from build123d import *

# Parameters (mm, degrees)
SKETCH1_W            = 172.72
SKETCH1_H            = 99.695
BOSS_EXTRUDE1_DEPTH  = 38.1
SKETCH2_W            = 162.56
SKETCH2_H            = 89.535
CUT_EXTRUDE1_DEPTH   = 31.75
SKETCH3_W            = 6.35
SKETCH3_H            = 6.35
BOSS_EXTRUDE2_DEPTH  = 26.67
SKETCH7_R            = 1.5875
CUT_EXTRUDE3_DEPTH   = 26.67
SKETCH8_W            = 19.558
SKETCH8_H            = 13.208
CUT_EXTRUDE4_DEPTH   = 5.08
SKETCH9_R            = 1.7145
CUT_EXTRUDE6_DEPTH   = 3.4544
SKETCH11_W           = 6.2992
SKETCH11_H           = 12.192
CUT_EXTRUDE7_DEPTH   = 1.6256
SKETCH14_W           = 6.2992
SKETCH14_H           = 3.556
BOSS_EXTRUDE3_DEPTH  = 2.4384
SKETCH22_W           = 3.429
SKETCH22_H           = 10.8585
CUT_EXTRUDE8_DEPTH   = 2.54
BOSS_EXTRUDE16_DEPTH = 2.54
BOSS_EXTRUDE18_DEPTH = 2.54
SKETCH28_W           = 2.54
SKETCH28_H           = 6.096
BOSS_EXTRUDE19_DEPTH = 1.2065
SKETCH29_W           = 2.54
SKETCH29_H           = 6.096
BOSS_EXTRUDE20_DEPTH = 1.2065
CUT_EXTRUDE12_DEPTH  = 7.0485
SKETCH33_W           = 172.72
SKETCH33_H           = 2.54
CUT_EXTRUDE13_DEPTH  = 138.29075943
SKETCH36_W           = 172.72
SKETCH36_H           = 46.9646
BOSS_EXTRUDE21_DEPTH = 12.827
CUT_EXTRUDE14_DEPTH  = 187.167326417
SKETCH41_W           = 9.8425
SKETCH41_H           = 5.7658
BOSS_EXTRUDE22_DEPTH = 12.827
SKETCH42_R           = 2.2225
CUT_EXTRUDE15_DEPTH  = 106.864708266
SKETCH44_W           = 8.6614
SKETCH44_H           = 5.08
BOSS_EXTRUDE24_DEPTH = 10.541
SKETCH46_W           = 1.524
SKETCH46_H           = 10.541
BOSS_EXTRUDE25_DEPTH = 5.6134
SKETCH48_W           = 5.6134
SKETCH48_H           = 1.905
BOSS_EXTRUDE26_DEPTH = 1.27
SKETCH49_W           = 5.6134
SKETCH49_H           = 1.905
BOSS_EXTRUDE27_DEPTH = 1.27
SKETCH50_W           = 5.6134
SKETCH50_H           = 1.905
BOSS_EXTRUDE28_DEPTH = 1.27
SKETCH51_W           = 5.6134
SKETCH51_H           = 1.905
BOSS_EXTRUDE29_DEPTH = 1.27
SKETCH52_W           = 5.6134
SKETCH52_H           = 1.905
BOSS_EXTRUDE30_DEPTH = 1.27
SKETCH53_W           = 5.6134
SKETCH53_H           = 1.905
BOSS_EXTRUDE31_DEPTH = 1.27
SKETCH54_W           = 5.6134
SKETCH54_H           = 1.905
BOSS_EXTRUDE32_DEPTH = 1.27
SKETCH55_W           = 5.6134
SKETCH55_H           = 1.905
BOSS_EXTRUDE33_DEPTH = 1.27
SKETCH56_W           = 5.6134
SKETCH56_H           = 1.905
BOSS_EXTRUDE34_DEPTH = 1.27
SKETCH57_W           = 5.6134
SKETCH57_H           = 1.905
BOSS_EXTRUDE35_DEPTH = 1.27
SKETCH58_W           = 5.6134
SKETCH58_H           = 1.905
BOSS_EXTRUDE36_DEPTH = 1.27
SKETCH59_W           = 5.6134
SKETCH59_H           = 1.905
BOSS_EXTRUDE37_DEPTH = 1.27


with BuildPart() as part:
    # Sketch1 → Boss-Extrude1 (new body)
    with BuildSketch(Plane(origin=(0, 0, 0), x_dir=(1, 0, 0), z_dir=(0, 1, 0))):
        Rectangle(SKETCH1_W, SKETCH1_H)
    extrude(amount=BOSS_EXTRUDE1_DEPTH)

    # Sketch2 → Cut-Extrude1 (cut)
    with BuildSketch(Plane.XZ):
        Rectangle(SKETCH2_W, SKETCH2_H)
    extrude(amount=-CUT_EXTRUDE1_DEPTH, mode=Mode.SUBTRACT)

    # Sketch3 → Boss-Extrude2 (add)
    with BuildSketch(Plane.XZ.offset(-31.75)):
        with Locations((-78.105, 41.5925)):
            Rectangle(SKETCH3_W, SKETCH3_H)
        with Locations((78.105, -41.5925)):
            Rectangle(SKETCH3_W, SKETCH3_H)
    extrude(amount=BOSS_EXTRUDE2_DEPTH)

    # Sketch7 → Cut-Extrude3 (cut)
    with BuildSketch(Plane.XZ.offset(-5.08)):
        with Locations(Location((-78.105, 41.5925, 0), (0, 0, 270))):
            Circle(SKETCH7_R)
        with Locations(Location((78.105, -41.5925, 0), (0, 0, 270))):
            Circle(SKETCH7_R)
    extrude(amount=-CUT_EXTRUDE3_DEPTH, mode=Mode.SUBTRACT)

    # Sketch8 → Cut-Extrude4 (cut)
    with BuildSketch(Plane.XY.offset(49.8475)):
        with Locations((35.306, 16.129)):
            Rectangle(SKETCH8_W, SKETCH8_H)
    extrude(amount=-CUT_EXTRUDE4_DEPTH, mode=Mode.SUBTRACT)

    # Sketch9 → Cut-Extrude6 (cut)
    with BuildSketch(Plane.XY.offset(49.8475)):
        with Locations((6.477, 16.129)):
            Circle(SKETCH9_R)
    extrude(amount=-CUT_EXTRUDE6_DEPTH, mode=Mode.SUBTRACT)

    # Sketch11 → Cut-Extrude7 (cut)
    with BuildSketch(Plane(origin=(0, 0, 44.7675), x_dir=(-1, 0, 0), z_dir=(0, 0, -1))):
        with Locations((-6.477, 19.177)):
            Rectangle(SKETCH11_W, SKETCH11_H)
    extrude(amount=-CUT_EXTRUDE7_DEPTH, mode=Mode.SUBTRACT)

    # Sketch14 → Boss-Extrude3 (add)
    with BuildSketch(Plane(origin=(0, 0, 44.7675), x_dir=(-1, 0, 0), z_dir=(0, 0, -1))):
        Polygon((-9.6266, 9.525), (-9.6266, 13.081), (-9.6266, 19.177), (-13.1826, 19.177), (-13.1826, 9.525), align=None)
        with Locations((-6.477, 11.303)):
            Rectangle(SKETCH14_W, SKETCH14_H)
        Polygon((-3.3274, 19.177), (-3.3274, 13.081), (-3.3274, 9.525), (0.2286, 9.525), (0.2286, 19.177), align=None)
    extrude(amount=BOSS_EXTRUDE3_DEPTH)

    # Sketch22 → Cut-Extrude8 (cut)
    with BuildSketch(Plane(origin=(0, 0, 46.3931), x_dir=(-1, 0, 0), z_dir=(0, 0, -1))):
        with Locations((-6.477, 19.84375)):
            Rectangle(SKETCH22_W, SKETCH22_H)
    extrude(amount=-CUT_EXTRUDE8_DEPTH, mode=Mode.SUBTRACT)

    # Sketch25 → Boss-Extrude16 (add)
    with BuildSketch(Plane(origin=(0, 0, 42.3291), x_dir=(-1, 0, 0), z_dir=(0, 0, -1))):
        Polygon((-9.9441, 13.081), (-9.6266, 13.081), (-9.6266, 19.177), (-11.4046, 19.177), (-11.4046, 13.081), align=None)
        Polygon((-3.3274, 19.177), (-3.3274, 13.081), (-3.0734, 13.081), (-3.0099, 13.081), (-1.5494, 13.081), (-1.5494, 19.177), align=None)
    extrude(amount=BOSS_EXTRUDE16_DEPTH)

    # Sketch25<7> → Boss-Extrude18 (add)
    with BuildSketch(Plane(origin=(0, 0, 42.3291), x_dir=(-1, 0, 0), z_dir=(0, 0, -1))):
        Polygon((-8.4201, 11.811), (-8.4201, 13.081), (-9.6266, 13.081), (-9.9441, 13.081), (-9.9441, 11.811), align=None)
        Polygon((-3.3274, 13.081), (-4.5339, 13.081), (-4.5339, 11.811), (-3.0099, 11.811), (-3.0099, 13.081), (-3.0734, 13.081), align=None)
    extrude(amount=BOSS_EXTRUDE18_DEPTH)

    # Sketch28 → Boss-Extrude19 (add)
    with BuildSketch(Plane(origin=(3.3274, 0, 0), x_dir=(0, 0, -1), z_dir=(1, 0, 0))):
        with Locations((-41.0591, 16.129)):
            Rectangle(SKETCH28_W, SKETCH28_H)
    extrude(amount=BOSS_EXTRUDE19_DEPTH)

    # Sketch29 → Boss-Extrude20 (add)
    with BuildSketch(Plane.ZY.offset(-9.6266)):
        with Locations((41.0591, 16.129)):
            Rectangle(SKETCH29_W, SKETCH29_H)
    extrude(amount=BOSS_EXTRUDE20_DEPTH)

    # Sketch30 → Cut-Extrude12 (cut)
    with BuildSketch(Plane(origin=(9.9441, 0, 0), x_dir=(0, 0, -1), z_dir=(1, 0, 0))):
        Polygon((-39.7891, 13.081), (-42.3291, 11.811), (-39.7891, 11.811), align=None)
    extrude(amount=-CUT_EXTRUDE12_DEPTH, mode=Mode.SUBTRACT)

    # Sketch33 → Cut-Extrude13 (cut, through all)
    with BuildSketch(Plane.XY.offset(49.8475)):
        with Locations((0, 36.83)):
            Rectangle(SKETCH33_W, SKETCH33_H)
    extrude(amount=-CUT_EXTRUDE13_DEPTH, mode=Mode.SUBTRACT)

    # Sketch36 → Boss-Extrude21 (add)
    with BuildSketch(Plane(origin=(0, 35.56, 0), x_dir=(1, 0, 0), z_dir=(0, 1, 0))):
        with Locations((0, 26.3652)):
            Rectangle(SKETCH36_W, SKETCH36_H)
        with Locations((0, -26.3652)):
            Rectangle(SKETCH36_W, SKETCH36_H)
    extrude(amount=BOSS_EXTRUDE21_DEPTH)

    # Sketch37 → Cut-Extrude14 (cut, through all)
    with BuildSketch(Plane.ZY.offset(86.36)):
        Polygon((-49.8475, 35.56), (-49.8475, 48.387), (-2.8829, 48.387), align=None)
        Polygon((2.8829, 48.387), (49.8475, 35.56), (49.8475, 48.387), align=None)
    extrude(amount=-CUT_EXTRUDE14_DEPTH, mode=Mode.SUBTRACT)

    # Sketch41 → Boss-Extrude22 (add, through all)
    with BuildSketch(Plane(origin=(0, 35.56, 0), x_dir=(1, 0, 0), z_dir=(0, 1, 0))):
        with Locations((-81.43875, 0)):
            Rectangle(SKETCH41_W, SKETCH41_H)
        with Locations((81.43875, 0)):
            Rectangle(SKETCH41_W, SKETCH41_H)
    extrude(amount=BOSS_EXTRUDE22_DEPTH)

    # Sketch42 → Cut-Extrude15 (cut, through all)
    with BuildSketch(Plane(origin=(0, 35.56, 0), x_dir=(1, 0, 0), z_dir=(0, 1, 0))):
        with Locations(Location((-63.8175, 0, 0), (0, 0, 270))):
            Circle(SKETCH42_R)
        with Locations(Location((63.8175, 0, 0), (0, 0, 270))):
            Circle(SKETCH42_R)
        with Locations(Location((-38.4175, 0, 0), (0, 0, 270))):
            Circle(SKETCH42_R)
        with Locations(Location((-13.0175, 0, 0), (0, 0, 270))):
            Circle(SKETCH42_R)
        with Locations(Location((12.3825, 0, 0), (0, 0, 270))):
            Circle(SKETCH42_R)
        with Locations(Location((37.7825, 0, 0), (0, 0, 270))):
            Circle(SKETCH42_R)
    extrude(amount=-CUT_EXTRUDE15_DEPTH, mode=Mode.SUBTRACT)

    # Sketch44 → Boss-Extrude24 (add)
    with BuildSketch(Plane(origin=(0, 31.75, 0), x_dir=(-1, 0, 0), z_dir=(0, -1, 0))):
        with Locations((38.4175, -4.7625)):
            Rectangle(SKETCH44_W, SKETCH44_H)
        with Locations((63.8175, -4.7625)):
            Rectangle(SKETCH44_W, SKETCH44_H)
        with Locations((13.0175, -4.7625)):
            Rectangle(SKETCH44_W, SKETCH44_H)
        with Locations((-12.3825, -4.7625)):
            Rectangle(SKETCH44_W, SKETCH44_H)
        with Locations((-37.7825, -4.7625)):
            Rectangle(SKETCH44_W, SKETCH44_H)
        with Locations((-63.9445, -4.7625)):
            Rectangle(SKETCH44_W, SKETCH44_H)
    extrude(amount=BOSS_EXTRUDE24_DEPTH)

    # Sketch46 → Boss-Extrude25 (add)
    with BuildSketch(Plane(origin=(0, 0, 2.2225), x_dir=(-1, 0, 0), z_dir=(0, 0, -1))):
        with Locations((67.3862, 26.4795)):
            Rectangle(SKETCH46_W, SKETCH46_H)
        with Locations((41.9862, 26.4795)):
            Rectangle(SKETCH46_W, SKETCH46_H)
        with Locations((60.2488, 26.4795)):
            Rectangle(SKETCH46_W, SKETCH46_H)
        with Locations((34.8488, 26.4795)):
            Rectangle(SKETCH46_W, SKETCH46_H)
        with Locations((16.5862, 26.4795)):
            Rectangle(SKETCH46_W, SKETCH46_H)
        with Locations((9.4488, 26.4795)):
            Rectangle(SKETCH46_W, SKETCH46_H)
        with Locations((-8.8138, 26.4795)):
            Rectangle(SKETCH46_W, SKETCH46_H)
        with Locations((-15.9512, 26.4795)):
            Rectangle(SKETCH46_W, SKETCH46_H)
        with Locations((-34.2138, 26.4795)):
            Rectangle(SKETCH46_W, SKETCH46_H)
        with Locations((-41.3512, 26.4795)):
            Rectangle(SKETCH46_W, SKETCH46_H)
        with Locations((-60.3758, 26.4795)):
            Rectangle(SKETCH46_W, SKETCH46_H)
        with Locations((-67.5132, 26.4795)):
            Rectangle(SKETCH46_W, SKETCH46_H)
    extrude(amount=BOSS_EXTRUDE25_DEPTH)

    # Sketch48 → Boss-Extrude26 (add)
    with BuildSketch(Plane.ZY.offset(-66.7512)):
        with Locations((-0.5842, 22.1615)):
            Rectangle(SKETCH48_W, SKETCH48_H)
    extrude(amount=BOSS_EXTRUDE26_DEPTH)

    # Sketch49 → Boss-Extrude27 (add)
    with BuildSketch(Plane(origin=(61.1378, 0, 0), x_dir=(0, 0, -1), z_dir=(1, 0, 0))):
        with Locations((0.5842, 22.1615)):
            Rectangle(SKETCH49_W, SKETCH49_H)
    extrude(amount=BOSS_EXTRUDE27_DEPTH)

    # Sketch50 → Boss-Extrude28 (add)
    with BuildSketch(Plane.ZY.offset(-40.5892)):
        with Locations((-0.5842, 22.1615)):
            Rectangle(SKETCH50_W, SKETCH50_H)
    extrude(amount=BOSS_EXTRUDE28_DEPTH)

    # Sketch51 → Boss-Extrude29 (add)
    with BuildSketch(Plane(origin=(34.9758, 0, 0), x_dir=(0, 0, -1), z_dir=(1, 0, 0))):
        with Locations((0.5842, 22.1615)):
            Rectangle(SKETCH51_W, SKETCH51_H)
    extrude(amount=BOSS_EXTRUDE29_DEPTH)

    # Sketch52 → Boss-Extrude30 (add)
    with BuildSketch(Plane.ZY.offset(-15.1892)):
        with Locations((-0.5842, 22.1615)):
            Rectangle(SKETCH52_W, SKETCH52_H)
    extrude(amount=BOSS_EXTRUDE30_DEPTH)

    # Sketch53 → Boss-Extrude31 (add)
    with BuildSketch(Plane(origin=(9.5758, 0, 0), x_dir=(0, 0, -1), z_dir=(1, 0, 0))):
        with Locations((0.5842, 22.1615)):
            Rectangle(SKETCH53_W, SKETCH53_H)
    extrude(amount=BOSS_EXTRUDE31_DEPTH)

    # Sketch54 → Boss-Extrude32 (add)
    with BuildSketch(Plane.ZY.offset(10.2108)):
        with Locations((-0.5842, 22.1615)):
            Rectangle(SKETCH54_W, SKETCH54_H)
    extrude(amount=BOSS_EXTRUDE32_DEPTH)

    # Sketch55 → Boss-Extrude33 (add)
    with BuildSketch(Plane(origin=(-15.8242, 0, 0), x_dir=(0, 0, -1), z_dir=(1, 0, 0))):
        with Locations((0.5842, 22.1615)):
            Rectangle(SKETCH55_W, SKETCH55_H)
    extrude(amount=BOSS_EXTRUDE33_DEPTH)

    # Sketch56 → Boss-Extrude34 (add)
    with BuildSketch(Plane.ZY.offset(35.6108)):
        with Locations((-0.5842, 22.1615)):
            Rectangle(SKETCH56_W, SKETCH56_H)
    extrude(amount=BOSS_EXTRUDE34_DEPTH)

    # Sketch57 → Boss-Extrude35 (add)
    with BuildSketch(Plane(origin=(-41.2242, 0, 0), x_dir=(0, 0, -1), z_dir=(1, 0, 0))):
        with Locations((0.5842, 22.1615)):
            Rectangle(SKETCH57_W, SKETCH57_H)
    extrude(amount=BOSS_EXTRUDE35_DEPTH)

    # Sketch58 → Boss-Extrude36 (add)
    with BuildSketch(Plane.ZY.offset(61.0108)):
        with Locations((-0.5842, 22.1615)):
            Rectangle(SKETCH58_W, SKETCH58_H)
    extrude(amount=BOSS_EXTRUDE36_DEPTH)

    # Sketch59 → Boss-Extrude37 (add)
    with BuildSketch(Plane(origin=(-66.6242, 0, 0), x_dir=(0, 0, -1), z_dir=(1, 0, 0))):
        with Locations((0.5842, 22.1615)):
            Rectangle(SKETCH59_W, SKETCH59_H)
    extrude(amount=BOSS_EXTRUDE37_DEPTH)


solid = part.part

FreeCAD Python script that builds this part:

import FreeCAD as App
import Part
import Sketcher

V = App.Vector
Q = App.Units.Quantity


def add_polygon(sketch, points):
    """Adds a closed chain of lines whose ends are joined by coincident constraints."""
    first, n = sketch.GeometryCount, len(points)
    for a, b in zip(points, points[1:] + points[:1]):
        sketch.addGeometry(Part.LineSegment(App.Vector(*a, 0), App.Vector(*b, 0)), False)
    for i in range(n):
        sketch.addConstraint(Sketcher.Constraint("Coincident", first + i, 2, first + (i + 1) % n, 1))

doc = App.newDocument("Part")
body = doc.addObject("PartDesign::Body", "Body")

# Sketch on XZ plane
sketch1 = body.newObject("Sketcher::SketchObject", "Sketch")
sketch1.AttachmentSupport = (doc.getObject("XZ_Plane"), [""])
sketch1.MapMode = "FlatFace"
add_polygon(sketch1, [(-86, -50), (-86, 50), (86, 50), (86, -50)])  # lines 0-3
sketch1.addConstraint([
    Sketcher.Constraint("Vertical", 0),
    Sketcher.Constraint("Horizontal", 1),
    Sketcher.Constraint("Vertical", 2),
    Sketcher.Constraint("Horizontal", 3),
    Sketcher.Constraint("Symmetric", 0, 2, 2, 2, -1, 1),
    Sketcher.Constraint("DistanceX", 1, 1, 1, 2, Q("6.8 in")),
    Sketcher.Constraint("DistanceY", 0, 1, 0, 2, Q("3.925 in")),
])
pad1 = body.newObject("PartDesign::Pad", "Pad")
pad1.Profile = sketch1
pad1.Length = Q("1.5 in")
pad1.Reversed = True

# Sketch on XZ plane
sketch2 = body.newObject("Sketcher::SketchObject", "Sketch001")
sketch2.AttachmentSupport = (doc.getObject("XZ_Plane"), [""])
sketch2.MapMode = "FlatFace"
add_polygon(sketch2, [(-81, 45), (-81, -45), (81, -45), (81, 45)])  # lines 0-3
sketch2.addConstraint([
    Sketcher.Constraint("Vertical", 0),
    Sketcher.Constraint("Horizontal", 1),
    Sketcher.Constraint("Vertical", 2),
    Sketcher.Constraint("Horizontal", 3),
    Sketcher.Constraint("Symmetric", 0, 2, 2, 2, -1, 1),
    Sketcher.Constraint("DistanceX", 1, 1, 1, 2, Q("6.4 in")),
    Sketcher.Constraint("DistanceY", 0, 2, 0, 1, Q("3.525 in")),
])
pocket1 = body.newObject("PartDesign::Pocket", "Pocket")
pocket1.Profile = sketch2
pocket1.Length = Q("1.25 in")

# Sketch on XZ plane
sketch3 = body.newObject("Sketcher::SketchObject", "Sketch002")
sketch3.AttachmentSupport = (doc.getObject("XZ_Plane"), [""])
sketch3.MapMode = "FlatFace"
sketch3.AttachmentOffset = App.Placement(V(0, 0, -1.25 * 25.4), App.Rotation())
add_polygon(sketch3, [(-81, 45), (-81, 38), (-75, 38), (-75, 45)])  # lines 0-3
add_polygon(sketch3, [(75, -38), (75, -45), (81, -45), (81, -38)])  # lines 4-7
sketch3.addConstraint([
    Sketcher.Constraint("Vertical", 0),
    Sketcher.Constraint("Horizontal", 1),
    Sketcher.Constraint("Vertical", 2),
    Sketcher.Constraint("Horizontal", 3),
    Sketcher.Constraint("Vertical", 4),
    Sketcher.Constraint("Horizontal", 5),
    Sketcher.Constraint("Vertical", 6),
    Sketcher.Constraint("Horizontal", 7),
    Sketcher.Constraint("Symmetric", 2, 2, 4, 2, -1, 1),
    Sketcher.Constraint("Symmetric", 0, 2, 6, 2, -1, 1),
    Sketcher.Constraint("Equal", 7, 0),
    Sketcher.Constraint("DistanceX", 1, 1, 1, 2, Q("0.25 in")),
    Sketcher.Constraint("DistanceX", 0, 2, -1, 1, Q("3.2 in")),
    Sketcher.Constraint("DistanceY", 4, 2, 1, 2, Q("3.275 in")),
])
pad2 = body.newObject("PartDesign::Pad", "Pad001")
pad2.Profile = sketch3
pad2.Length = Q("1.05 in")

# Sketch on XZ plane
sketch4 = body.newObject("Sketcher::SketchObject", "Sketch003")
sketch4.AttachmentSupport = (doc.getObject("XZ_Plane"), [""])
sketch4.MapMode = "FlatFace"
sketch4.AttachmentOffset = App.Placement(V(0, 0, -0.2 * 25.4), App.Rotation())
sketch4.addGeometry([
    Part.Circle(V(-78.1, 41.6, 0), V(0, 0, 1), 1.6),
    Part.Circle(V(78.1, -41.6, 0), V(0, 0, 1), 1.6),
], False)
sketch4.addConstraint([
    Sketcher.Constraint("Equal", 0, 1),
    Sketcher.Constraint("Symmetric", 0, 3, 1, 3, -1, 1),
    Sketcher.Constraint("Diameter", 0, Q("0.125 in")),
    Sketcher.Constraint("DistanceX", 0, 3, 1, 3, Q("6.15 in")),
    Sketcher.Constraint("DistanceY", 1, 3, 0, 3, Q("3.275 in")),
])
pocket2 = body.newObject("PartDesign::Pocket", "Pocket001")
pocket2.Profile = sketch4
pocket2.Length = Q("1.05 in")

# Sketch on XY plane
sketch5 = body.newObject("Sketcher::SketchObject", "Sketch004")
sketch5.AttachmentSupport = (doc.getObject("XY_Plane"), [""])
sketch5.MapMode = "FlatFace"
sketch5.AttachmentOffset = App.Placement(V(0, 0, 1.9625 * 25.4), App.Rotation())
add_polygon(sketch5, [(26, 23), (26, 10), (45, 10), (45, 23)])  # lines 0-3
sketch5.addConstraint([
    Sketcher.Constraint("Vertical", 0),
    Sketcher.Constraint("Horizontal", 1),
    Sketcher.Constraint("Vertical", 2),
    Sketcher.Constraint("Horizontal", 3),
    Sketcher.Constraint("DistanceX", 1, 1, 1, 2, Q("0.77 in")),
    Sketcher.Constraint("DistanceY", 0, 2, 0, 1, Q("0.52 in")),
    Sketcher.Constraint("DistanceX", -1, 1, 0, 2, Q("1.005 in")),
    Sketcher.Constraint("DistanceY", -1, 1, 0, 2, Q("0.375 in")),
])
pocket3 = body.newObject("PartDesign::Pocket", "Pocket002")
pocket3.Profile = sketch5
pocket3.Length = Q("0.2 in")

# Sketch on XY plane
sketch6 = body.newObject("Sketcher::SketchObject", "Sketch005")
sketch6.AttachmentSupport = (doc.getObject("XY_Plane"), [""])
sketch6.MapMode = "FlatFace"
sketch6.AttachmentOffset = App.Placement(V(0, 0, 1.9625 * 25.4), App.Rotation())
sketch6.addGeometry(Part.Circle(V(6.5, 16.1, 0), V(0, 0, 1), 1.7), False)
sketch6.addConstraint([
    Sketcher.Constraint("Diameter", 0, Q("0.135 in")),
    Sketcher.Constraint("DistanceX", -1, 1, 0, 3, Q("0.255 in")),
    Sketcher.Constraint("DistanceY", -1, 1, 0, 3, Q("0.635 in")),
])
pocket4 = body.newObject("PartDesign::Pocket", "Pocket003")
pocket4.Profile = sketch6
pocket4.Length = Q("0.136 in")

# Sketch on XY plane
sketch7 = body.newObject("Sketcher::SketchObject", "Sketch006")
sketch7.AttachmentSupport = (doc.getObject("XY_Plane"), [""])
sketch7.MapMode = "FlatFace"
sketch7.AttachmentOffset = App.Placement(V(0, 0, 1.7625 * 25.4), App.Rotation())
add_polygon(sketch7, [(10, 25), (10, 13), (3, 13), (3, 25)])  # lines 0-3
sketch7.addConstraint([
    Sketcher.Constraint("Vertical", 0),
    Sketcher.Constraint("Horizontal", 1),
    Sketcher.Constraint("Vertical", 2),
    Sketcher.Constraint("Horizontal", 3),
    Sketcher.Constraint("DistanceY", 0, 2, 0, 1, Q("0.48 in")),
    Sketcher.Constraint("DistanceX", 1, 2, 1, 1, Q("0.248 in")),
    Sketcher.Constraint("DistanceX", -1, 1, 0, 2, Q("0.379 in")),
    Sketcher.Constraint("DistanceY", -1, 1, 0, 2, Q("0.515 in")),
])
pocket5 = body.newObject("PartDesign::Pocket", "Pocket004")
pocket5.Profile = sketch7
pocket5.Length = Q("0.064 in")
pocket5.Reversed = True

# Sketch on XY plane
sketch8 = body.newObject("Sketcher::SketchObject", "Sketch007")
sketch8.AttachmentSupport = (doc.getObject("XY_Plane"), [""])
sketch8.MapMode = "FlatFace"
sketch8.AttachmentOffset = App.Placement(V(0, 0, 1.7625 * 25.4), App.Rotation())
add_polygon(sketch8, [(9.6, 13.1), (9.6, 19.2), (13.2, 19.2), (13.2, 9.5), (-0.2, 9.5), (-0.2, 19.2), (3.3, 19.2), (3.3, 13.1)])  # lines 0-7
sketch8.addConstraint([
    Sketcher.Constraint("Vertical", 0),
    Sketcher.Constraint("Horizontal", 1),
    Sketcher.Constraint("Vertical", 2),
    Sketcher.Constraint("Horizontal", 3),
    Sketcher.Constraint("Vertical", 4),
    Sketcher.Constraint("Horizontal", 5),
    Sketcher.Constraint("Vertical", 6),
    Sketcher.Constraint("Horizontal", 7),
    Sketcher.Constraint("Horizontal", 1, 2, 4, 2),
    Sketcher.Constraint("Equal", 1, 5),
    Sketcher.Constraint("DistanceX", 1, 1, 1, 2, Q("0.14 in")),
    Sketcher.Constraint("DistanceY", 0, 1, 0, 2, Q("0.24 in")),
    Sketcher.Constraint("DistanceY", 2, 2, 2, 1, Q("0.38 in")),
    Sketcher.Constraint("DistanceX", 3, 2, 3, 1, Q("0.528 in")),
    Sketcher.Constraint("DistanceX", -1, 1, 0, 2, Q("0.379 in")),
    Sketcher.Constraint("DistanceY", -1, 1, 0, 2, Q("0.755 in")),
])
pad3 = body.newObject("PartDesign::Pad", "Pad002")
pad3.Profile = sketch8
pad3.Length = Q("0.096 in")
pad3.Reversed = True

# Sketch on XY plane
sketch9 = body.newObject("Sketcher::SketchObject", "Sketch008")
sketch9.AttachmentSupport = (doc.getObject("XY_Plane"), [""])
sketch9.MapMode = "FlatFace"
sketch9.AttachmentOffset = App.Placement(V(0, 0, 1.8265 * 25.4), App.Rotation())
add_polygon(sketch9, [(8.2, 25.3), (8.2, 14.4), (4.8, 14.4), (4.8, 25.3)])  # lines 0-3
sketch9.addConstraint([
    Sketcher.Constraint("Vertical", 0),
    Sketcher.Constraint("Horizontal", 1),
    Sketcher.Constraint("Vertical", 2),
    Sketcher.Constraint("Horizontal", 3),
    Sketcher.Constraint("DistanceX", 1, 2, 1, 1, Q("0.135 in")),
    Sketcher.Constraint("DistanceY", 0, 2, 0, 1, Q("0.4275 in")),
    Sketcher.Constraint("DistanceX", -1, 1, 1, 2, Q("0.1875 in")),
    Sketcher.Constraint("DistanceY", -1, 1, 2, 2, Q("0.995 in")),
])
pocket6 = body.newObject("PartDesign::Pocket", "Pocket005")
pocket6.Profile = sketch9
pocket6.Length = Q("0.1 in")
pocket6.Reversed = True

# Sketch on XY plane
sketch10 = body.newObject("Sketcher::SketchObject", "Sketch009")
sketch10.AttachmentSupport = (doc.getObject("XY_Plane"), [""])
sketch10.MapMode = "FlatFace"
sketch10.AttachmentOffset = App.Placement(V(0, 0, 1.6665 * 25.4), App.Rotation())
add_polygon(sketch10, [(9.6, 13.1), (9.6, 19.2), (11.4, 19.2), (11.4, 13.1)])  # lines 0-3
add_polygon(sketch10, [(3.3, 19.2), (3.3, 13.1), (1.5, 13.1), (1.5, 19.2)])  # lines 4-7
sketch10.addConstraint([
    Sketcher.Constraint("Vertical", 0),
    Sketcher.Constraint("Horizontal", 1),
    Sketcher.Constraint("Vertical", 2),
    Sketcher.Constraint("Horizontal", 3),
    Sketcher.Constraint("Vertical", 4),
    Sketcher.Constraint("Horizontal", 5),
    Sketcher.Constraint("Vertical", 6),
    Sketcher.Constraint("Horizontal", 7),
    Sketcher.Constraint("Horizontal", 3, 2, 4, 2),
    Sketcher.Constraint("Horizontal", 1, 2, 6, 2),
    Sketcher.Constraint("Equal", 3, 5),
    Sketcher.Constraint("DistanceX", 1, 1, 1, 2, Q("0.07 in")),
    Sketcher.Constraint("DistanceY", 0, 1, 0, 2, Q("0.24 in")),
    Sketcher.Constraint("DistanceX", -1, 1, 0, 2, Q("0.379 in")),
    Sketcher.Constraint("DistanceY", -1, 1, 0, 2, Q("0.755 in")),
    Sketcher.Constraint("DistanceX", -1, 1, 4, 2, Q("0.131 in")),
])
pad4 = body.newObject("PartDesign::Pad", "Pad003")
pad4.Profile = sketch10
pad4.Length = Q("0.1 in")
pad4.Reversed = True

# Sketch on XY plane
sketch11 = body.newObject("Sketcher::SketchObject", "Sketch010")
sketch11.AttachmentSupport = (doc.getObject("XY_Plane"), [""])
sketch11.MapMode = "FlatFace"
sketch11.AttachmentOffset = App.Placement(V(0, 0, 1.6665 * 25.4), App.Rotation())
add_polygon(sketch11, [(8.4, 11.8), (8.4, 13.1), (9.9, 13.1), (9.9, 11.8)])  # lines 0-3
add_polygon(sketch11, [(4.5, 13.1), (4.5, 11.8), (3, 11.8), (3, 13.1)])  # lines 4-7
sketch11.addConstraint([
    Sketcher.Constraint("Vertical", 0),
    Sketcher.Constraint("Horizontal", 1),
    Sketcher.Constraint("Vertical", 2),
    Sketcher.Constraint("Horizontal", 3),
    Sketcher.Constraint("Vertical", 4),
    Sketcher.Constraint("Horizontal", 5),
    Sketcher.Constraint("Vertical", 6),
    Sketcher.Constraint("Horizontal", 7),
    Sketcher.Constraint("Horizontal", 3, 2, 4, 2),
    Sketcher.Constraint("Horizontal", 1, 2, 6, 2),
    Sketcher.Constraint("Equal", 3, 5),
    Sketcher.Constraint("DistanceX", 1, 1, 1, 2, Q("0.06 in")),
    Sketcher.Constraint("DistanceY", 0, 1, 0, 2, Q("0.05 in")),
    Sketcher.Constraint("DistanceY", -1, 1, 0, 2, Q("0.515 in")),
    Sketcher.Constraint("DistanceX", 4, 2, 3, 2, Q("0.153 in")),
    Sketcher.Constraint("DistanceX", -1, 1, 0, 2, Q("0.3315 in")),
])
pad5 = body.newObject("PartDesign::Pad", "Pad004")
pad5.Profile = sketch11
pad5.Length = Q("0.1 in")
pad5.Reversed = True

# Sketch on YZ plane
sketch12 = body.newObject("Sketcher::SketchObject", "Sketch011")
sketch12.AttachmentSupport = (doc.getObject("YZ_Plane"), [""])
sketch12.MapMode = "FlatFace"
sketch12.AttachmentOffset = App.Placement(V(0, 0, 0.131 * 25.4), App.Rotation())
add_polygon(sketch12, [(19.2, 42.3), (13.1, 42.3), (13.1, 39.8), (19.2, 39.8)])  # lines 0-3
sketch12.addConstraint([
    Sketcher.Constraint("Horizontal", 0),
    Sketcher.Constraint("Vertical", 1),
    Sketcher.Constraint("Horizontal", 2),
    Sketcher.Constraint("Vertical", 3),
    Sketcher.Constraint("DistanceY", 1, 2, 1, 1, Q("0.1 in")),
    Sketcher.Constraint("DistanceX", 0, 2, 0, 1, Q("0.24 in")),
    Sketcher.Constraint("DistanceX", -1, 1, 0, 2, Q("0.515 in")),
    Sketcher.Constraint("DistanceY", -1, 1, 0, 2, Q("1.6665 in")),
])
pad6 = body.newObject("PartDesign::Pad", "Pad005")
pad6.Profile = sketch12
pad6.Length = Q("0.0475 in")

# Sketch on YZ plane
sketch13 = body.newObject("Sketcher::SketchObject", "Sketch012")
sketch13.AttachmentSupport = (doc.getObject("YZ_Plane"), [""])
sketch13.MapMode = "FlatFace"
sketch13.AttachmentOffset = App.Placement(V(0, 0, 0.379 * 25.4), App.Rotation())
add_polygon(sketch13, [(19.2, 39.8), (13.1, 39.8), (13.1, 42.3), (19.2, 42.3)])  # lines 0-3
sketch13.addConstraint([
    Sketcher.Constraint("Horizontal", 0),
    Sketcher.Constraint("Vertical", 1),
    Sketcher.Constraint("Horizontal", 2),
    Sketcher.Constraint("Vertical", 3),
    Sketcher.Constraint("DistanceY", 1, 1, 1, 2, Q("0.1 in")),
    Sketcher.Constraint("DistanceX", 0, 2, 0, 1, Q("0.24 in")),
    Sketcher.Constraint("DistanceX", -1, 1, 0, 2, Q("0.515 in")),
    Sketcher.Constraint("DistanceY", -1, 1, 0, 2, Q("1.5665 in")),
])
pad7 = body.newObject("PartDesign::Pad", "Pad006")
pad7.Profile = sketch13
pad7.Length = Q("0.0475 in")
pad7.Reversed = True

# Sketch on YZ plane
sketch14 = body.newObject("Sketcher::SketchObject", "Sketch013")
sketch14.AttachmentSupport = (doc.getObject("YZ_Plane"), [""])
sketch14.MapMode = "FlatFace"
sketch14.AttachmentOffset = App.Placement(V(0, 0, 0.3915 * 25.4), App.Rotation())
add_polygon(sketch14, [(13.1, 39.8), (11.8, 42.3), (11.8, 39.8)])  # lines 0-2
sketch14.addConstraint([
    Sketcher.Constraint("Vertical", 1),
    Sketcher.Constraint("Horizontal", 2),
    Sketcher.Constraint("DistanceY", 1, 2, 1, 1, Q("0.1 in")),
    Sketcher.Constraint("DistanceX", 2, 1, 2, 2, Q("0.05 in")),
    Sketcher.Constraint("DistanceX", -1, 1, 0, 2, Q("0.465 in")),
    Sketcher.Constraint("DistanceY", -1, 1, 0, 2, Q("1.6665 in")),
])
pocket7 = body.newObject("PartDesign::Pocket", "Pocket006")
pocket7.Profile = sketch14
pocket7.Length = Q("0.2775 in")

# Sketch on XY plane
sketch15 = body.newObject("Sketcher::SketchObject", "Sketch014")
sketch15.AttachmentSupport = (doc.getObject("XY_Plane"), [""])
sketch15.MapMode = "FlatFace"
sketch15.AttachmentOffset = App.Placement(V(0, 0, 1.9625 * 25.4), App.Rotation())
add_polygon(sketch15, [(-86.4, 38.1), (-86.4, 35.6), (86.4, 35.6), (86.4, 38.1)])  # lines 0-3
sketch15.addConstraint([
    Sketcher.Constraint("Vertical", 0),
    Sketcher.Constraint("Horizontal", 1),
    Sketcher.Constraint("Vertical", 2),
    Sketcher.Constraint("Horizontal", 3),
    Sketcher.Constraint("DistanceX", 1, 1, 1, 2, Q("6.8 in")),
    Sketcher.Constraint("DistanceY", 0, 2, 0, 1, Q("0.1 in")),
    Sketcher.Constraint("DistanceX", 0, 2, -1, 1, Q("3.4 in")),
    Sketcher.Constraint("DistanceY", -1, 1, 0, 2, Q("1.4 in")),
])
pocket8 = body.newObject("PartDesign::Pocket", "Pocket007")
pocket8.Profile = sketch15
pocket8.Type = "ThroughAll"

# Sketch on XZ plane
sketch16 = body.newObject("Sketcher::SketchObject", "Sketch015")
sketch16.AttachmentSupport = (doc.getObject("XZ_Plane"), [""])
sketch16.MapMode = "FlatFace"
sketch16.AttachmentOffset = App.Placement(V(0, 0, -1.4 * 25.4), App.Rotation())
add_polygon(sketch16, [(-86, -50), (-86, -3), (86, -3), (86, -50)])  # lines 0-3
add_polygon(sketch16, [(-86, 3), (-86, 50), (86, 50), (86, 3)])  # lines 4-7
sketch16.addConstraint([
    Sketcher.Constraint("Vertical", 0),
    Sketcher.Constraint("Horizontal", 1),
    Sketcher.Constraint("Vertical", 2),
    Sketcher.Constraint("Horizontal", 3),
    Sketcher.Constraint("Vertical", 4),
    Sketcher.Constraint("Horizontal", 5),
    Sketcher.Constraint("Vertical", 6),
    Sketcher.Constraint("Horizontal", 7),
    Sketcher.Constraint("Symmetric", 2, 2, 4, 2, -1, 1),
    Sketcher.Constraint("Symmetric", 0, 2, 6, 2, -1, 1),
    Sketcher.Constraint("Vertical", 3, 2, 4, 2),
    Sketcher.Constraint("DistanceX", 1, 1, 1, 2, Q("6.8 in")),
    Sketcher.Constraint("DistanceY", 0, 1, 0, 2, Q("1.849 in")),
    Sketcher.Constraint("DistanceY", 0, 2, 4, 2, Q("2.076 in")),
])
pad8 = body.newObject("PartDesign::Pad", "Pad007")
pad8.Profile = sketch16
pad8.Length = Q("0.505 in")
pad8.Reversed = True

# Sketch on YZ plane
sketch17 = body.newObject("Sketcher::SketchObject", "Sketch016")
sketch17.AttachmentSupport = (doc.getObject("YZ_Plane"), [""])
sketch17.MapMode = "FlatFace"
sketch17.AttachmentOffset = App.Placement(V(0, 0, -3.4 * 25.4), App.Rotation())
add_polygon(sketch17, [(48, -50), (36, -50), (48, -3)])  # lines 0-2
add_polygon(sketch17, [(48, 3), (36, 50), (48, 50)])  # lines 3-5
sketch17.addConstraint([
    Sketcher.Constraint("Horizontal", 0),
    Sketcher.Constraint("Vertical", 2),
    Sketcher.Constraint("Horizontal", 4),
    Sketcher.Constraint("Vertical", 5),
    Sketcher.Constraint("Symmetric", 0, 2, 3, 2, -1),
    Sketcher.Constraint("Symmetric", 1, 2, 5, 2, -1),
    Sketcher.Constraint("DistanceX", -1, 1, 0, 2, Q("1.4 in")),
    Sketcher.Constraint("DistanceX", 0, 2, 0, 1, Q("0.505 in")),
    Sketcher.Constraint("DistanceY", 2, 2, 2, 1, Q("1.849 in")),
    Sketcher.Constraint("DistanceY", 1, 2, 3, 2, Q("2.076 in")),
])
pocket9 = body.newObject("PartDesign::Pocket", "Pocket008")
pocket9.Profile = sketch17
pocket9.Type = "ThroughAll"
pocket9.Reversed = True

# Sketch on XZ plane
sketch18 = body.newObject("Sketcher::SketchObject", "Sketch017")
sketch18.AttachmentSupport = (doc.getObject("XZ_Plane"), [""])
sketch18.MapMode = "FlatFace"
sketch18.AttachmentOffset = App.Placement(V(0, 0, -1.4 * 25.4), App.Rotation())
add_polygon(sketch18, [(-86, -3), (-86, 3), (-77, 3), (-77, -3)])  # lines 0-3
add_polygon(sketch18, [(77, -3), (77, 3), (86, 3), (86, -3)])  # lines 4-7
sketch18.addConstraint([
    Sketcher.Constraint("Vertical", 0),
    Sketcher.Constraint("Horizontal", 1),
    Sketcher.Constraint("Vertical", 2),
    Sketcher.Constraint("Horizontal", 3),
    Sketcher.Constraint("Vertical", 4),
    Sketcher.Constraint("Horizontal", 5),
    Sketcher.Constraint("Vertical", 6),
    Sketcher.Constraint("Horizontal", 7),
    Sketcher.Constraint("Symmetric", 2, 2, 4, 2, -1, 1),
    Sketcher.Constraint("Symmetric", 0, 2, 6, 2, -1, 1),
    Sketcher.Constraint("Horizontal", 1, 2, 4, 2),
    Sketcher.Constraint("DistanceX", 0, 2, -1, 1, Q("3.4 in")),
    Sketcher.Constraint("DistanceY", 0, 1, 0, 2, Q("0.227 in")),
    Sketcher.Constraint("DistanceX", 1, 1, 1, 2, Q("0.3875 in")),
])
pad9 = body.newObject("PartDesign::Pad", "Pad008")
pad9.Profile = sketch18
pad9.Length = Q("0.505 in")
pad9.Reversed = True

# Sketch on XZ plane
sketch19 = body.newObject("Sketcher::SketchObject", "Sketch018")
sketch19.AttachmentSupport = (doc.getObject("XZ_Plane"), [""])
sketch19.MapMode = "FlatFace"
sketch19.AttachmentOffset = App.Placement(V(0, 0, -1.4 * 25.4), App.Rotation())
sketch19.addGeometry([
    Part.Circle(V(-63.8, 0, 0), V(0, 0, 1), 2.2),  # 0
    Part.Circle(V(63.8, 0, 0), V(0, 0, 1), 2.2),  # 1
    Part.Circle(V(-38.4, 0, 0), V(0, 0, 1), 2.2),  # 2
    Part.Circle(V(-13, 0, 0), V(0, 0, 1), 2.2),  # 3
    Part.Circle(V(12.4, 0, 0), V(0, 0, 1), 2.2),  # 4
    Part.Circle(V(37.8, 0, 0), V(0, 0, 1), 2.2),  # 5
], False)
sketch19.addConstraint([
    Sketcher.Constraint("Equal", 0, 1),
    Sketcher.Constraint("Equal", 1, 2),
    Sketcher.Constraint("Equal", 2, 3),
    Sketcher.Constraint("Equal", 3, 4),
    Sketcher.Constraint("Equal", 4, 5),
    Sketcher.Constraint("Symmetric", 0, 3, 1, 3, -1, 1),
    Sketcher.Constraint("PointOnObject", 0, 3, -1),
    Sketcher.Constraint("PointOnObject", 2, 3, -1),
    Sketcher.Constraint("PointOnObject", 3, 3, -1),
    Sketcher.Constraint("PointOnObject", 4, 3, -1),
    Sketcher.Constraint("PointOnObject", 5, 3, -1),
    Sketcher.Constraint("Diameter", 0, Q("0.175 in")),
    Sketcher.Constraint("DistanceX", 0, 3, 2, 3, Q("1 in")),
    Sketcher.Constraint("DistanceX", 2, 3, 3, 3, Q("1 in")),
    Sketcher.Constraint("DistanceX", 3, 3, 4, 3, Q("1 in")),
    Sketcher.Constraint("DistanceX", 4, 3, 5, 3, Q("1 in")),
    Sketcher.Constraint("DistanceX", 0, 3, 1, 3, Q("5.025 in")),
])
pocket10 = body.newObject("PartDesign::Pocket", "Pocket009")
pocket10.Profile = sketch19
pocket10.Type = "ThroughAll"
pocket10.Reversed = True

# Sketch on XZ plane
sketch20 = body.newObject("Sketcher::SketchObject", "Sketch019")
sketch20.AttachmentSupport = (doc.getObject("XZ_Plane"), [""])
sketch20.MapMode = "FlatFace"
sketch20.AttachmentOffset = App.Placement(V(0, 0, -1.25 * 25.4), App.Rotation())
add_polygon(sketch20, [(-34, 2), (-34, 7), (-43, 7), (-43, 2)])  # lines 0-3
add_polygon(sketch20, [(-59, 2), (-59, 7), (-68, 7), (-68, 2)])  # lines 4-7
add_polygon(sketch20, [(-9, 2), (-9, 7), (-17, 7), (-17, 2)])  # lines 8-11
add_polygon(sketch20, [(17, 2), (17, 7), (8, 7), (8, 2)])  # lines 12-15
add_polygon(sketch20, [(42, 2), (42, 7), (33, 7), (33, 2)])  # lines 16-19
add_polygon(sketch20, [(68, 2), (68, 7), (60, 7), (60, 2)])  # lines 20-23
sketch20.addConstraint([
    Sketcher.Constraint("Vertical", 0),
    Sketcher.Constraint("Horizontal", 1),
    Sketcher.Constraint("Vertical", 2),
    Sketcher.Constraint("Horizontal", 3),
    Sketcher.Constraint("Vertical", 4),
    Sketcher.Constraint("Horizontal", 5),
    Sketcher.Constraint("Vertical", 6),
    Sketcher.Constraint("Horizontal", 7),
    Sketcher.Constraint("Vertical", 8),
    Sketcher.Constraint("Horizontal", 9),
    Sketcher.Constraint("Vertical", 10),
    Sketcher.Constraint("Horizontal", 11),
    Sketcher.Constraint("Vertical", 12),
    Sketcher.Constraint("Horizontal", 13),
    Sketcher.Constraint("Vertical", 14),
    Sketcher.Constraint("Horizontal", 15),
    Sketcher.Constraint("Vertical", 16),
    Sketcher.Constraint("Horizontal", 17),
    Sketcher.Constraint("Vertical", 18),
    Sketcher.Constraint("Horizontal", 19),
    Sketcher.Constraint("Vertical", 20),
    Sketcher.Constraint("Horizontal", 21),
    Sketcher.Constraint("Vertical", 22),
    Sketcher.Constraint("Horizontal", 23),
    Sketcher.Constraint("Horizontal", 1, 2, 4, 2),
    Sketcher.Constraint("Horizontal", 3, 2, 6, 2),
    Sketcher.Constraint("Horizontal", 5, 2, 8, 2),
    Sketcher.Constraint("Horizontal", 7, 2, 10, 2),
    Sketcher.Constraint("Horizontal", 9, 2, 12, 2),
    Sketcher.Constraint("Horizontal", 11, 2, 14, 2),
    Sketcher.Constraint("Horizontal", 13, 2, 16, 2),
    Sketcher.Constraint("Horizontal", 15, 2, 18, 2),
    Sketcher.Constraint("Horizontal", 17, 2, 20, 2),
    Sketcher.Constraint("Horizontal", 19, 2, 22, 2),
    Sketcher.Constraint("Equal", 3, 5),
    Sketcher.Constraint("Equal", 7, 9),
    Sketcher.Constraint("Equal", 11, 13),
    Sketcher.Constraint("Equal", 15, 17),
    Sketcher.Constraint("Equal", 19, 21),
    Sketcher.Constraint("DistanceY", 0, 1, 0, 2, Q("0.2 in")),
    Sketcher.Constraint("DistanceX", 4, 2, 0, 2, Q("1 in")),
    Sketcher.Constraint("DistanceX", 0, 2, 8, 2, Q("1 in")),
    Sketcher.Constraint("DistanceX", 8, 2, 12, 2, Q("1 in")),
    Sketcher.Constraint("DistanceX", 12, 2, 16, 2, Q("1 in")),
    Sketcher.Constraint("DistanceX", 1, 2, 1, 1, Q("0.341 in")),
    Sketcher.Constraint("DistanceX", 16, 2, 20, 2, Q("1.03 in")),
    Sketcher.Constraint("DistanceX", 0, 2, -1, 1, Q("1.342 in")),
    Sketcher.Constraint("DistanceY", -1, 1, 0, 2, Q("0.2875 in")),
])
pad10 = body.newObject("PartDesign::Pad", "Pad009")
pad10.Profile = sketch20
pad10.Length = Q("0.415 in")

# Sketch on XY plane
sketch21 = body.newObject("Sketcher::SketchObject", "Sketch020")
sketch21.AttachmentSupport = (doc.getObject("XY_Plane"), [""])
sketch21.MapMode = "FlatFace"
sketch21.AttachmentOffset = App.Placement(V(0, 0, 0.0875 * 25.4), App.Rotation())
add_polygon(sketch21, [(-66.6, 31.8), (-66.6, 21.2), (-68.1, 21.2), (-68.1, 31.8)])  # lines 0-3
add_polygon(sketch21, [(-41.2, 31.8), (-41.2, 21.2), (-42.7, 21.2), (-42.7, 31.8)])  # lines 4-7
add_polygon(sketch21, [(-59.5, 31.8), (-59.5, 21.2), (-61, 21.2), (-61, 31.8)])  # lines 8-11
add_polygon(sketch21, [(-34.1, 31.8), (-34.1, 21.2), (-35.6, 21.2), (-35.6, 31.8)])  # lines 12-15
add_polygon(sketch21, [(-15.8, 31.8), (-15.8, 21.2), (-17.3, 21.2), (-17.3, 31.8)])  # lines 16-19
add_polygon(sketch21, [(-8.7, 31.8), (-8.7, 21.2), (-10.2, 21.2), (-10.2, 31.8)])  # lines 20-23
add_polygon(sketch21, [(9.6, 31.8), (9.6, 21.2), (8.1, 21.2), (8.1, 31.8)])  # lines 24-27
add_polygon(sketch21, [(16.7, 31.8), (16.7, 21.2), (15.2, 21.2), (15.2, 31.8)])  # lines 28-31
add_polygon(sketch21, [(35, 31.8), (35, 21.2), (33.5, 21.2), (33.5, 31.8)])  # lines 32-35
add_polygon(sketch21, [(42.1, 31.8), (42.1, 21.2), (40.6, 21.2), (40.6, 31.8)])  # lines 36-39
add_polygon(sketch21, [(61.1, 31.8), (61.1, 21.2), (59.6, 21.2), (59.6, 31.8)])  # lines 40-43
add_polygon(sketch21, [(68.3, 31.8), (68.3, 21.2), (66.8, 21.2), (66.8, 31.8)])  # lines 44-47
sketch21.addConstraint([
    Sketcher.Constraint("Vertical", 0),
    Sketcher.Constraint("Horizontal", 1),
    Sketcher.Constraint("Vertical", 2),
    Sketcher.Constraint("Horizontal", 3),
    Sketcher.Constraint("Vertical", 4),
    Sketcher.Constraint("Horizontal", 5),
    Sketcher.Constraint("Vertical", 6),
    Sketcher.Constraint("Horizontal", 7),
    Sketcher.Constraint("Vertical", 8),
    Sketcher.Constraint("Horizontal", 9),
    Sketcher.Constraint("Vertical", 10),
    Sketcher.Constraint("Horizontal", 11),
    Sketcher.Constraint("Vertical", 12),
    Sketcher.Constraint("Horizontal", 13),
    Sketcher.Constraint("Vertical", 14),
    Sketcher.Constraint("Horizontal", 15),
    Sketcher.Constraint("Vertical", 16),
    Sketcher.Constraint("Horizontal", 17),
    Sketcher.Constraint("Vertical", 18),
    Sketcher.Constraint("Horizontal", 19),
    Sketcher.Constraint("Vertical", 20),
    Sketcher.Constraint("Horizontal", 21),
    Sketcher.Constraint("Vertical", 22),
    Sketcher.Constraint("Horizontal", 23),
    Sketcher.Constraint("Vertical", 24),
    Sketcher.Constraint("Horizontal", 25),
    Sketcher.Constraint("Vertical", 26),
    Sketcher.Constraint("Horizontal", 27),
    Sketcher.Constraint("Vertical", 28),
    Sketcher.Constraint("Horizontal", 29),
    Sketcher.Constraint("Vertical", 30),
    Sketcher.Constraint("Horizontal", 31),
    Sketcher.Constraint("Vertical", 32),
    Sketcher.Constraint("Horizontal", 33),
    Sketcher.Constraint("Vertical", 34),
    Sketcher.Constraint("Horizontal", 35),
    Sketcher.Constraint("Vertical", 36),
    Sketcher.Constraint("Horizontal", 37),
    Sketcher.Constraint("Vertical", 38),
    Sketcher.Constraint("Horizontal", 39),
    Sketcher.Constraint("Vertical", 40),
    Sketcher.Constraint("Horizontal", 41),
    Sketcher.Constraint("Vertical", 42),
    Sketcher.Constraint("Horizontal", 43),
    Sketcher.Constraint("Vertical", 44),
    Sketcher.Constraint("Horizontal", 45),
    Sketcher.Constraint("Vertical", 46),
    Sketcher.Constraint("Horizontal", 47),
    Sketcher.Constraint("Horizontal", 1, 2, 4, 2),
    Sketcher.Constraint("Horizontal", 3, 2, 6, 2),
    Sketcher.Constraint("Horizontal", 5, 2, 8, 2),
    Sketcher.Constraint("Horizontal", 7, 2, 10, 2),
    Sketcher.Constraint("Horizontal", 9, 2, 12, 2),
    Sketcher.Constraint("Horizontal", 11, 2, 14, 2),
    Sketcher.Constraint("Horizontal", 13, 2, 16, 2),
    Sketcher.Constraint("Horizontal", 15, 2, 18, 2),
    Sketcher.Constraint("Horizontal", 17, 2, 20, 2),
    Sketcher.Constraint("Horizontal", 19, 2, 22, 2),
    Sketcher.Constraint("Horizontal", 21, 2, 24, 2),
    Sketcher.Constraint("Horizontal", 23, 2, 26, 2),
    Sketcher.Constraint("Horizontal", 25, 2, 28, 2),
    Sketcher.Constraint("Horizontal", 27, 2, 30, 2),
    Sketcher.Constraint("Horizontal", 29, 2, 32, 2),
    Sketcher.Constraint("Horizontal", 31, 2, 34, 2),
    Sketcher.Constraint("Horizontal", 33, 2, 36, 2),
    Sketcher.Constraint("Horizontal", 35, 2, 38, 2),
    Sketcher.Constraint("Horizontal", 37, 2, 40, 2),
    Sketcher.Constraint("Horizontal", 39, 2, 42, 2),
    Sketcher.Constraint("Horizontal", 41, 2, 44, 2),
    Sketcher.Constraint("Horizontal", 43, 2, 46, 2),
    Sketcher.Constraint("Equal", 3, 5),
    Sketcher.Constraint("Equal", 7, 9),
    Sketcher.Constraint("Equal", 11, 13),
    Sketcher.Constraint("Equal", 15, 17),
    Sketcher.Constraint("Equal", 19, 21),
    Sketcher.Constraint("Equal", 23, 25),
    Sketcher.Constraint("Equal", 27, 29),
    Sketcher.Constraint("Equal", 31, 33),
    Sketcher.Constraint("Equal", 35, 37),
    Sketcher.Constraint("Equal", 39, 41),
    Sketcher.Constraint("Equal", 43, 45),
    Sketcher.Constraint("DistanceX", 0, 2, 4, 2, Q("1 in")),
    Sketcher.Constraint("DistanceX", 8, 2, 12, 2, Q("1 in")),
    Sketcher.Constraint("DistanceX", 4, 2, 16, 2, Q("1 in")),
    Sketcher.Constraint("DistanceX", 12, 2, 20, 2, Q("1 in")),
    Sketcher.Constraint("DistanceX", 16, 2, 24, 2, Q("1 in")),
    Sketcher.Constraint("DistanceX", 20, 2, 28, 2, Q("1 in")),
    Sketcher.Constraint("DistanceX", 24, 2, 32, 2, Q("1 in")),
    Sketcher.Constraint("DistanceX", 28, 2, 36, 2, Q("1 in")),
    Sketcher.Constraint("DistanceX", 1, 2, 1, 1, Q("0.06 in")),
    Sketcher.Constraint("DistanceY", 0, 2, 0, 1, Q("0.415 in")),
    Sketcher.Constraint("DistanceY", -1, 1, 2, 2, Q("1.25 in")),
    Sketcher.Constraint("DistanceX", 32, 2, 40, 2, Q("1.03 in")),
    Sketcher.Constraint("DistanceX", 36, 2, 44, 2, Q("1.03 in")),
    Sketcher.Constraint("DistanceX", 0, 2, -1, 1, Q("2.623 in")),
    Sketcher.Constraint("DistanceX", 8, 2, -1, 1, Q("2.342 in")),
])
pad11 = body.newObject("PartDesign::Pad", "Pad010")
pad11.Profile = sketch21
pad11.Length = Q("0.221 in")
pad11.Reversed = True

# Sketch on YZ plane
sketch22 = body.newObject("Sketcher::SketchObject", "Sketch021")
sketch22.AttachmentSupport = (doc.getObject("YZ_Plane"), [""])
sketch22.MapMode = "FlatFace"
sketch22.AttachmentOffset = App.Placement(V(0, 0, 2.628 * 25.4), App.Rotation())
add_polygon(sketch22, [(23.1, -3.4), (21.2, -3.4), (21.2, 2.2), (23.1, 2.2)])  # lines 0-3
sketch22.addConstraint([
    Sketcher.Constraint("Horizontal", 0),
    Sketcher.Constraint("Vertical", 1),
    Sketcher.Constraint("Horizontal", 2),
    Sketcher.Constraint("Vertical", 3),
    Sketcher.Constraint("DistanceX", 0, 2, 0, 1, Q("0.075 in")),
    Sketcher.Constraint("DistanceY", 1, 1, 1, 2, Q("0.221 in")),
    Sketcher.Constraint("DistanceX", -1, 1, 2, 2, Q("0.91 in")),
    Sketcher.Constraint("DistanceY", 0, 2, -1, 1, Q("0.1335 in")),
])
pad12 = body.newObject("PartDesign::Pad", "Pad011")
pad12.Profile = sketch22
pad12.Length = Q("0.05 in")
pad12.Reversed = True

# Sketch on YZ plane
sketch23 = body.newObject("Sketcher::SketchObject", "Sketch022")
sketch23.AttachmentSupport = (doc.getObject("YZ_Plane"), [""])
sketch23.MapMode = "FlatFace"
sketch23.AttachmentOffset = App.Placement(V(0, 0, 2.407 * 25.4), App.Rotation())
add_polygon(sketch23, [(23.1, 2.2), (21.2, 2.2), (21.2, -3.4), (23.1, -3.4)])  # lines 0-3
sketch23.addConstraint([
    Sketcher.Constraint("Horizontal", 0),
    Sketcher.Constraint("Vertical", 1),
    Sketcher.Constraint("Horizontal", 2),
    Sketcher.Constraint("Vertical", 3),
    Sketcher.Constraint("DistanceX", 0, 2, 0, 1, Q("0.075 in")),
    Sketcher.Constraint("DistanceY", 1, 2, 1, 1, Q("0.221 in")),
    Sketcher.Constraint("DistanceX", -1, 1, 2, 2, Q("0.91 in")),
    Sketcher.Constraint("DistanceY", -1, 1, 0, 2, Q("0.0875 in")),
])
pad13 = body.newObject("PartDesign::Pad", "Pad012")
pad13.Profile = sketch23
pad13.Length = Q("0.05 in")

# Sketch on YZ plane
sketch24 = body.newObject("Sketcher::SketchObject", "Sketch023")
sketch24.AttachmentSupport = (doc.getObject("YZ_Plane"), [""])
sketch24.MapMode = "FlatFace"
sketch24.AttachmentOffset = App.Placement(V(0, 0, 1.598 * 25.4), App.Rotation())
add_polygon(sketch24, [(23.1, -3.4), (21.2, -3.4), (21.2, 2.2), (23.1, 2.2)])  # lines 0-3
sketch24.addConstraint([
    Sketcher.Constraint("Horizontal", 0),
    Sketcher.Constraint("Vertical", 1),
    Sketcher.Constraint("Horizontal", 2),
    Sketcher.Constraint("Vertical", 3),
    Sketcher.Constraint("DistanceX", 0, 2, 0, 1, Q("0.075 in")),
    Sketcher.Constraint("DistanceY", 1, 1, 1, 2, Q("0.221 in")),
    Sketcher.Constraint("DistanceX", -1, 1, 2, 2, Q("0.91 in")),
    Sketcher.Constraint("DistanceY", 0, 2, -1, 1, Q("0.1335 in")),
])
pad14 = body.newObject("PartDesign::Pad", "Pad013")
pad14.Profile = sketch24
pad14.Length = Q("0.05 in")
pad14.Reversed = True

# Sketch on YZ plane
sketch25 = body.newObject("Sketcher::SketchObject", "Sketch024")
sketch25.AttachmentSupport = (doc.getObject("YZ_Plane"), [""])
sketch25.MapMode = "FlatFace"
sketch25.AttachmentOffset = App.Placement(V(0, 0, 1.377 * 25.4), App.Rotation())
add_polygon(sketch25, [(23.1, 2.2), (21.2, 2.2), (21.2, -3.4), (23.1, -3.4)])  # lines 0-3
sketch25.addConstraint([
    Sketcher.Constraint("Horizontal", 0),
    Sketcher.Constraint("Vertical", 1),
    Sketcher.Constraint("Horizontal", 2),
    Sketcher.Constraint("Vertical", 3),
    Sketcher.Constraint("DistanceX", 0, 2, 0, 1, Q("0.075 in")),
    Sketcher.Constraint("DistanceY", 1, 2, 1, 1, Q("0.221 in")),
    Sketcher.Constraint("DistanceX", -1, 1, 2, 2, Q("0.91 in")),
    Sketcher.Constraint("DistanceY", -1, 1, 0, 2, Q("0.0875 in")),
])
pad15 = body.newObject("PartDesign::Pad", "Pad014")
pad15.Profile = sketch25
pad15.Length = Q("0.05 in")

# Sketch on YZ plane
sketch26 = body.newObject("Sketcher::SketchObject", "Sketch025")
sketch26.AttachmentSupport = (doc.getObject("YZ_Plane"), [""])
sketch26.MapMode = "FlatFace"
sketch26.AttachmentOffset = App.Placement(V(0, 0, 0.598 * 25.4), App.Rotation())
add_polygon(sketch26, [(23.1, -3.4), (21.2, -3.4), (21.2, 2.2), (23.1, 2.2)])  # lines 0-3
sketch26.addConstraint([
    Sketcher.Constraint("Horizontal", 0),
    Sketcher.Constraint("Vertical", 1),
    Sketcher.Constraint("Horizontal", 2),
    Sketcher.Constraint("Vertical", 3),
    Sketcher.Constraint("DistanceX", 0, 2, 0, 1, Q("0.075 in")),
    Sketcher.Constraint("DistanceY", 1, 1, 1, 2, Q("0.221 in")),
    Sketcher.Constraint("DistanceX", -1, 1, 2, 2, Q("0.91 in")),
    Sketcher.Constraint("DistanceY", 0, 2, -1, 1, Q("0.1335 in")),
])
pad16 = body.newObject("PartDesign::Pad", "Pad015")
pad16.Profile = sketch26
pad16.Length = Q("0.05 in")
pad16.Reversed = True

# Sketch on YZ plane
sketch27 = body.newObject("Sketcher::SketchObject", "Sketch026")
sketch27.AttachmentSupport = (doc.getObject("YZ_Plane"), [""])
sketch27.MapMode = "FlatFace"
sketch27.AttachmentOffset = App.Placement(V(0, 0, 0.377 * 25.4), App.Rotation())
add_polygon(sketch27, [(23.1, 2.2), (21.2, 2.2), (21.2, -3.4), (23.1, -3.4)])  # lines 0-3
sketch27.addConstraint([
    Sketcher.Constraint("Horizontal", 0),
    Sketcher.Constraint("Vertical", 1),
    Sketcher.Constraint("Horizontal", 2),
    Sketcher.Constraint("Vertical", 3),
    Sketcher.Constraint("DistanceX", 0, 2, 0, 1, Q("0.075 in")),
    Sketcher.Constraint("DistanceY", 1, 2, 1, 1, Q("0.221 in")),
    Sketcher.Constraint("DistanceX", -1, 1, 2, 2, Q("0.91 in")),
    Sketcher.Constraint("DistanceY", -1, 1, 0, 2, Q("0.0875 in")),
])
pad17 = body.newObject("PartDesign::Pad", "Pad016")
pad17.Profile = sketch27
pad17.Length = Q("0.05 in")

# Sketch on YZ plane
sketch28 = body.newObject("Sketcher::SketchObject", "Sketch027")
sketch28.AttachmentSupport = (doc.getObject("YZ_Plane"), [""])
sketch28.MapMode = "FlatFace"
sketch28.AttachmentOffset = App.Placement(V(0, 0, -0.402 * 25.4), App.Rotation())
add_polygon(sketch28, [(23.1, -3.4), (21.2, -3.4), (21.2, 2.2), (23.1, 2.2)])  # lines 0-3
sketch28.addConstraint([
    Sketcher.Constraint("Horizontal", 0),
    Sketcher.Constraint("Vertical", 1),
    Sketcher.Constraint("Horizontal", 2),
    Sketcher.Constraint("Vertical", 3),
    Sketcher.Constraint("DistanceX", 0, 2, 0, 1, Q("0.075 in")),
    Sketcher.Constraint("DistanceY", 1, 1, 1, 2, Q("0.221 in")),
    Sketcher.Constraint("DistanceX", -1, 1, 2, 2, Q("0.91 in")),
    Sketcher.Constraint("DistanceY", 0, 2, -1, 1, Q("0.1335 in")),
])
pad18 = body.newObject("PartDesign::Pad", "Pad017")
pad18.Profile = sketch28
pad18.Length = Q("0.05 in")
pad18.Reversed = True

# Sketch on YZ plane
sketch29 = body.newObject("Sketcher::SketchObject", "Sketch028")
sketch29.AttachmentSupport = (doc.getObject("YZ_Plane"), [""])
sketch29.MapMode = "FlatFace"
sketch29.AttachmentOffset = App.Placement(V(0, 0, -0.623 * 25.4), App.Rotation())
add_polygon(sketch29, [(23.1, 2.2), (21.2, 2.2), (21.2, -3.4), (23.1, -3.4)])  # lines 0-3
sketch29.addConstraint([
    Sketcher.Constraint("Horizontal", 0),
    Sketcher.Constraint("Vertical", 1),
    Sketcher.Constraint("Horizontal", 2),
    Sketcher.Constraint("Vertical", 3),
    Sketcher.Constraint("DistanceX", 0, 2, 0, 1, Q("0.075 in")),
    Sketcher.Constraint("DistanceY", 1, 2, 1, 1, Q("0.221 in")),
    Sketcher.Constraint("DistanceX", -1, 1, 2, 2, Q("0.91 in")),
    Sketcher.Constraint("DistanceY", -1, 1, 0, 2, Q("0.0875 in")),
])
pad19 = body.newObject("PartDesign::Pad", "Pad018")
pad19.Profile = sketch29
pad19.Length = Q("0.05 in")

# Sketch on YZ plane
sketch30 = body.newObject("Sketcher::SketchObject", "Sketch029")
sketch30.AttachmentSupport = (doc.getObject("YZ_Plane"), [""])
sketch30.MapMode = "FlatFace"
sketch30.AttachmentOffset = App.Placement(V(0, 0, -1.402 * 25.4), App.Rotation())
add_polygon(sketch30, [(23.1, -3.4), (21.2, -3.4), (21.2, 2.2), (23.1, 2.2)])  # lines 0-3
sketch30.addConstraint([
    Sketcher.Constraint("Horizontal", 0),
    Sketcher.Constraint("Vertical", 1),
    Sketcher.Constraint("Horizontal", 2),
    Sketcher.Constraint("Vertical", 3),
    Sketcher.Constraint("DistanceX", 0, 2, 0, 1, Q("0.075 in")),
    Sketcher.Constraint("DistanceY", 1, 1, 1, 2, Q("0.221 in")),
    Sketcher.Constraint("DistanceX", -1, 1, 2, 2, Q("0.91 in")),
    Sketcher.Constraint("DistanceY", 0, 2, -1, 1, Q("0.1335 in")),
])
pad20 = body.newObject("PartDesign::Pad", "Pad019")
pad20.Profile = sketch30
pad20.Length = Q("0.05 in")
pad20.Reversed = True

# Sketch on YZ plane
sketch31 = body.newObject("Sketcher::SketchObject", "Sketch030")
sketch31.AttachmentSupport = (doc.getObject("YZ_Plane"), [""])
sketch31.MapMode = "FlatFace"
sketch31.AttachmentOffset = App.Placement(V(0, 0, -1.623 * 25.4), App.Rotation())
add_polygon(sketch31, [(23.1, 2.2), (21.2, 2.2), (21.2, -3.4), (23.1, -3.4)])  # lines 0-3
sketch31.addConstraint([
    Sketcher.Constraint("Horizontal", 0),
    Sketcher.Constraint("Vertical", 1),
    Sketcher.Constraint("Horizontal", 2),
    Sketcher.Constraint("Vertical", 3),
    Sketcher.Constraint("DistanceX", 0, 2, 0, 1, Q("0.075 in")),
    Sketcher.Constraint("DistanceY", 1, 2, 1, 1, Q("0.221 in")),
    Sketcher.Constraint("DistanceX", -1, 1, 2, 2, Q("0.91 in")),
    Sketcher.Constraint("DistanceY", -1, 1, 0, 2, Q("0.0875 in")),
])
pad21 = body.newObject("PartDesign::Pad", "Pad020")
pad21.Profile = sketch31
pad21.Length = Q("0.05 in")

# Sketch on YZ plane
sketch32 = body.newObject("Sketcher::SketchObject", "Sketch031")
sketch32.AttachmentSupport = (doc.getObject("YZ_Plane"), [""])
sketch32.MapMode = "FlatFace"
sketch32.AttachmentOffset = App.Placement(V(0, 0, -2.402 * 25.4), App.Rotation())
add_polygon(sketch32, [(23.1, -3.4), (21.2, -3.4), (21.2, 2.2), (23.1, 2.2)])  # lines 0-3
sketch32.addConstraint([
    Sketcher.Constraint("Horizontal", 0),
    Sketcher.Constraint("Vertical", 1),
    Sketcher.Constraint("Horizontal", 2),
    Sketcher.Constraint("Vertical", 3),
    Sketcher.Constraint("DistanceX", 0, 2, 0, 1, Q("0.075 in")),
    Sketcher.Constraint("DistanceY", 1, 1, 1, 2, Q("0.221 in")),
    Sketcher.Constraint("DistanceX", -1, 1, 2, 2, Q("0.91 in")),
    Sketcher.Constraint("DistanceY", 0, 2, -1, 1, Q("0.1335 in")),
])
pad22 = body.newObject("PartDesign::Pad", "Pad021")
pad22.Profile = sketch32
pad22.Length = Q("0.05 in")
pad22.Reversed = True

# Sketch on YZ plane
sketch33 = body.newObject("Sketcher::SketchObject", "Sketch032")
sketch33.AttachmentSupport = (doc.getObject("YZ_Plane"), [""])
sketch33.MapMode = "FlatFace"
sketch33.AttachmentOffset = App.Placement(V(0, 0, -2.623 * 25.4), App.Rotation())
add_polygon(sketch33, [(23.1, 2.2), (21.2, 2.2), (21.2, -3.4), (23.1, -3.4)])  # lines 0-3
sketch33.addConstraint([
    Sketcher.Constraint("Horizontal", 0),
    Sketcher.Constraint("Vertical", 1),
    Sketcher.Constraint("Horizontal", 2),
    Sketcher.Constraint("Vertical", 3),
    Sketcher.Constraint("DistanceX", 0, 2, 0, 1, Q("0.075 in")),
    Sketcher.Constraint("DistanceY", 1, 2, 1, 1, Q("0.221 in")),
    Sketcher.Constraint("DistanceX", -1, 1, 2, 2, Q("0.91 in")),
    Sketcher.Constraint("DistanceY", -1, 1, 0, 2, Q("0.0875 in")),
])
pad23 = body.newObject("PartDesign::Pad", "Pad022")
pad23.Profile = sketch33
pad23.Length = Q("0.05 in")

doc.recompute()
